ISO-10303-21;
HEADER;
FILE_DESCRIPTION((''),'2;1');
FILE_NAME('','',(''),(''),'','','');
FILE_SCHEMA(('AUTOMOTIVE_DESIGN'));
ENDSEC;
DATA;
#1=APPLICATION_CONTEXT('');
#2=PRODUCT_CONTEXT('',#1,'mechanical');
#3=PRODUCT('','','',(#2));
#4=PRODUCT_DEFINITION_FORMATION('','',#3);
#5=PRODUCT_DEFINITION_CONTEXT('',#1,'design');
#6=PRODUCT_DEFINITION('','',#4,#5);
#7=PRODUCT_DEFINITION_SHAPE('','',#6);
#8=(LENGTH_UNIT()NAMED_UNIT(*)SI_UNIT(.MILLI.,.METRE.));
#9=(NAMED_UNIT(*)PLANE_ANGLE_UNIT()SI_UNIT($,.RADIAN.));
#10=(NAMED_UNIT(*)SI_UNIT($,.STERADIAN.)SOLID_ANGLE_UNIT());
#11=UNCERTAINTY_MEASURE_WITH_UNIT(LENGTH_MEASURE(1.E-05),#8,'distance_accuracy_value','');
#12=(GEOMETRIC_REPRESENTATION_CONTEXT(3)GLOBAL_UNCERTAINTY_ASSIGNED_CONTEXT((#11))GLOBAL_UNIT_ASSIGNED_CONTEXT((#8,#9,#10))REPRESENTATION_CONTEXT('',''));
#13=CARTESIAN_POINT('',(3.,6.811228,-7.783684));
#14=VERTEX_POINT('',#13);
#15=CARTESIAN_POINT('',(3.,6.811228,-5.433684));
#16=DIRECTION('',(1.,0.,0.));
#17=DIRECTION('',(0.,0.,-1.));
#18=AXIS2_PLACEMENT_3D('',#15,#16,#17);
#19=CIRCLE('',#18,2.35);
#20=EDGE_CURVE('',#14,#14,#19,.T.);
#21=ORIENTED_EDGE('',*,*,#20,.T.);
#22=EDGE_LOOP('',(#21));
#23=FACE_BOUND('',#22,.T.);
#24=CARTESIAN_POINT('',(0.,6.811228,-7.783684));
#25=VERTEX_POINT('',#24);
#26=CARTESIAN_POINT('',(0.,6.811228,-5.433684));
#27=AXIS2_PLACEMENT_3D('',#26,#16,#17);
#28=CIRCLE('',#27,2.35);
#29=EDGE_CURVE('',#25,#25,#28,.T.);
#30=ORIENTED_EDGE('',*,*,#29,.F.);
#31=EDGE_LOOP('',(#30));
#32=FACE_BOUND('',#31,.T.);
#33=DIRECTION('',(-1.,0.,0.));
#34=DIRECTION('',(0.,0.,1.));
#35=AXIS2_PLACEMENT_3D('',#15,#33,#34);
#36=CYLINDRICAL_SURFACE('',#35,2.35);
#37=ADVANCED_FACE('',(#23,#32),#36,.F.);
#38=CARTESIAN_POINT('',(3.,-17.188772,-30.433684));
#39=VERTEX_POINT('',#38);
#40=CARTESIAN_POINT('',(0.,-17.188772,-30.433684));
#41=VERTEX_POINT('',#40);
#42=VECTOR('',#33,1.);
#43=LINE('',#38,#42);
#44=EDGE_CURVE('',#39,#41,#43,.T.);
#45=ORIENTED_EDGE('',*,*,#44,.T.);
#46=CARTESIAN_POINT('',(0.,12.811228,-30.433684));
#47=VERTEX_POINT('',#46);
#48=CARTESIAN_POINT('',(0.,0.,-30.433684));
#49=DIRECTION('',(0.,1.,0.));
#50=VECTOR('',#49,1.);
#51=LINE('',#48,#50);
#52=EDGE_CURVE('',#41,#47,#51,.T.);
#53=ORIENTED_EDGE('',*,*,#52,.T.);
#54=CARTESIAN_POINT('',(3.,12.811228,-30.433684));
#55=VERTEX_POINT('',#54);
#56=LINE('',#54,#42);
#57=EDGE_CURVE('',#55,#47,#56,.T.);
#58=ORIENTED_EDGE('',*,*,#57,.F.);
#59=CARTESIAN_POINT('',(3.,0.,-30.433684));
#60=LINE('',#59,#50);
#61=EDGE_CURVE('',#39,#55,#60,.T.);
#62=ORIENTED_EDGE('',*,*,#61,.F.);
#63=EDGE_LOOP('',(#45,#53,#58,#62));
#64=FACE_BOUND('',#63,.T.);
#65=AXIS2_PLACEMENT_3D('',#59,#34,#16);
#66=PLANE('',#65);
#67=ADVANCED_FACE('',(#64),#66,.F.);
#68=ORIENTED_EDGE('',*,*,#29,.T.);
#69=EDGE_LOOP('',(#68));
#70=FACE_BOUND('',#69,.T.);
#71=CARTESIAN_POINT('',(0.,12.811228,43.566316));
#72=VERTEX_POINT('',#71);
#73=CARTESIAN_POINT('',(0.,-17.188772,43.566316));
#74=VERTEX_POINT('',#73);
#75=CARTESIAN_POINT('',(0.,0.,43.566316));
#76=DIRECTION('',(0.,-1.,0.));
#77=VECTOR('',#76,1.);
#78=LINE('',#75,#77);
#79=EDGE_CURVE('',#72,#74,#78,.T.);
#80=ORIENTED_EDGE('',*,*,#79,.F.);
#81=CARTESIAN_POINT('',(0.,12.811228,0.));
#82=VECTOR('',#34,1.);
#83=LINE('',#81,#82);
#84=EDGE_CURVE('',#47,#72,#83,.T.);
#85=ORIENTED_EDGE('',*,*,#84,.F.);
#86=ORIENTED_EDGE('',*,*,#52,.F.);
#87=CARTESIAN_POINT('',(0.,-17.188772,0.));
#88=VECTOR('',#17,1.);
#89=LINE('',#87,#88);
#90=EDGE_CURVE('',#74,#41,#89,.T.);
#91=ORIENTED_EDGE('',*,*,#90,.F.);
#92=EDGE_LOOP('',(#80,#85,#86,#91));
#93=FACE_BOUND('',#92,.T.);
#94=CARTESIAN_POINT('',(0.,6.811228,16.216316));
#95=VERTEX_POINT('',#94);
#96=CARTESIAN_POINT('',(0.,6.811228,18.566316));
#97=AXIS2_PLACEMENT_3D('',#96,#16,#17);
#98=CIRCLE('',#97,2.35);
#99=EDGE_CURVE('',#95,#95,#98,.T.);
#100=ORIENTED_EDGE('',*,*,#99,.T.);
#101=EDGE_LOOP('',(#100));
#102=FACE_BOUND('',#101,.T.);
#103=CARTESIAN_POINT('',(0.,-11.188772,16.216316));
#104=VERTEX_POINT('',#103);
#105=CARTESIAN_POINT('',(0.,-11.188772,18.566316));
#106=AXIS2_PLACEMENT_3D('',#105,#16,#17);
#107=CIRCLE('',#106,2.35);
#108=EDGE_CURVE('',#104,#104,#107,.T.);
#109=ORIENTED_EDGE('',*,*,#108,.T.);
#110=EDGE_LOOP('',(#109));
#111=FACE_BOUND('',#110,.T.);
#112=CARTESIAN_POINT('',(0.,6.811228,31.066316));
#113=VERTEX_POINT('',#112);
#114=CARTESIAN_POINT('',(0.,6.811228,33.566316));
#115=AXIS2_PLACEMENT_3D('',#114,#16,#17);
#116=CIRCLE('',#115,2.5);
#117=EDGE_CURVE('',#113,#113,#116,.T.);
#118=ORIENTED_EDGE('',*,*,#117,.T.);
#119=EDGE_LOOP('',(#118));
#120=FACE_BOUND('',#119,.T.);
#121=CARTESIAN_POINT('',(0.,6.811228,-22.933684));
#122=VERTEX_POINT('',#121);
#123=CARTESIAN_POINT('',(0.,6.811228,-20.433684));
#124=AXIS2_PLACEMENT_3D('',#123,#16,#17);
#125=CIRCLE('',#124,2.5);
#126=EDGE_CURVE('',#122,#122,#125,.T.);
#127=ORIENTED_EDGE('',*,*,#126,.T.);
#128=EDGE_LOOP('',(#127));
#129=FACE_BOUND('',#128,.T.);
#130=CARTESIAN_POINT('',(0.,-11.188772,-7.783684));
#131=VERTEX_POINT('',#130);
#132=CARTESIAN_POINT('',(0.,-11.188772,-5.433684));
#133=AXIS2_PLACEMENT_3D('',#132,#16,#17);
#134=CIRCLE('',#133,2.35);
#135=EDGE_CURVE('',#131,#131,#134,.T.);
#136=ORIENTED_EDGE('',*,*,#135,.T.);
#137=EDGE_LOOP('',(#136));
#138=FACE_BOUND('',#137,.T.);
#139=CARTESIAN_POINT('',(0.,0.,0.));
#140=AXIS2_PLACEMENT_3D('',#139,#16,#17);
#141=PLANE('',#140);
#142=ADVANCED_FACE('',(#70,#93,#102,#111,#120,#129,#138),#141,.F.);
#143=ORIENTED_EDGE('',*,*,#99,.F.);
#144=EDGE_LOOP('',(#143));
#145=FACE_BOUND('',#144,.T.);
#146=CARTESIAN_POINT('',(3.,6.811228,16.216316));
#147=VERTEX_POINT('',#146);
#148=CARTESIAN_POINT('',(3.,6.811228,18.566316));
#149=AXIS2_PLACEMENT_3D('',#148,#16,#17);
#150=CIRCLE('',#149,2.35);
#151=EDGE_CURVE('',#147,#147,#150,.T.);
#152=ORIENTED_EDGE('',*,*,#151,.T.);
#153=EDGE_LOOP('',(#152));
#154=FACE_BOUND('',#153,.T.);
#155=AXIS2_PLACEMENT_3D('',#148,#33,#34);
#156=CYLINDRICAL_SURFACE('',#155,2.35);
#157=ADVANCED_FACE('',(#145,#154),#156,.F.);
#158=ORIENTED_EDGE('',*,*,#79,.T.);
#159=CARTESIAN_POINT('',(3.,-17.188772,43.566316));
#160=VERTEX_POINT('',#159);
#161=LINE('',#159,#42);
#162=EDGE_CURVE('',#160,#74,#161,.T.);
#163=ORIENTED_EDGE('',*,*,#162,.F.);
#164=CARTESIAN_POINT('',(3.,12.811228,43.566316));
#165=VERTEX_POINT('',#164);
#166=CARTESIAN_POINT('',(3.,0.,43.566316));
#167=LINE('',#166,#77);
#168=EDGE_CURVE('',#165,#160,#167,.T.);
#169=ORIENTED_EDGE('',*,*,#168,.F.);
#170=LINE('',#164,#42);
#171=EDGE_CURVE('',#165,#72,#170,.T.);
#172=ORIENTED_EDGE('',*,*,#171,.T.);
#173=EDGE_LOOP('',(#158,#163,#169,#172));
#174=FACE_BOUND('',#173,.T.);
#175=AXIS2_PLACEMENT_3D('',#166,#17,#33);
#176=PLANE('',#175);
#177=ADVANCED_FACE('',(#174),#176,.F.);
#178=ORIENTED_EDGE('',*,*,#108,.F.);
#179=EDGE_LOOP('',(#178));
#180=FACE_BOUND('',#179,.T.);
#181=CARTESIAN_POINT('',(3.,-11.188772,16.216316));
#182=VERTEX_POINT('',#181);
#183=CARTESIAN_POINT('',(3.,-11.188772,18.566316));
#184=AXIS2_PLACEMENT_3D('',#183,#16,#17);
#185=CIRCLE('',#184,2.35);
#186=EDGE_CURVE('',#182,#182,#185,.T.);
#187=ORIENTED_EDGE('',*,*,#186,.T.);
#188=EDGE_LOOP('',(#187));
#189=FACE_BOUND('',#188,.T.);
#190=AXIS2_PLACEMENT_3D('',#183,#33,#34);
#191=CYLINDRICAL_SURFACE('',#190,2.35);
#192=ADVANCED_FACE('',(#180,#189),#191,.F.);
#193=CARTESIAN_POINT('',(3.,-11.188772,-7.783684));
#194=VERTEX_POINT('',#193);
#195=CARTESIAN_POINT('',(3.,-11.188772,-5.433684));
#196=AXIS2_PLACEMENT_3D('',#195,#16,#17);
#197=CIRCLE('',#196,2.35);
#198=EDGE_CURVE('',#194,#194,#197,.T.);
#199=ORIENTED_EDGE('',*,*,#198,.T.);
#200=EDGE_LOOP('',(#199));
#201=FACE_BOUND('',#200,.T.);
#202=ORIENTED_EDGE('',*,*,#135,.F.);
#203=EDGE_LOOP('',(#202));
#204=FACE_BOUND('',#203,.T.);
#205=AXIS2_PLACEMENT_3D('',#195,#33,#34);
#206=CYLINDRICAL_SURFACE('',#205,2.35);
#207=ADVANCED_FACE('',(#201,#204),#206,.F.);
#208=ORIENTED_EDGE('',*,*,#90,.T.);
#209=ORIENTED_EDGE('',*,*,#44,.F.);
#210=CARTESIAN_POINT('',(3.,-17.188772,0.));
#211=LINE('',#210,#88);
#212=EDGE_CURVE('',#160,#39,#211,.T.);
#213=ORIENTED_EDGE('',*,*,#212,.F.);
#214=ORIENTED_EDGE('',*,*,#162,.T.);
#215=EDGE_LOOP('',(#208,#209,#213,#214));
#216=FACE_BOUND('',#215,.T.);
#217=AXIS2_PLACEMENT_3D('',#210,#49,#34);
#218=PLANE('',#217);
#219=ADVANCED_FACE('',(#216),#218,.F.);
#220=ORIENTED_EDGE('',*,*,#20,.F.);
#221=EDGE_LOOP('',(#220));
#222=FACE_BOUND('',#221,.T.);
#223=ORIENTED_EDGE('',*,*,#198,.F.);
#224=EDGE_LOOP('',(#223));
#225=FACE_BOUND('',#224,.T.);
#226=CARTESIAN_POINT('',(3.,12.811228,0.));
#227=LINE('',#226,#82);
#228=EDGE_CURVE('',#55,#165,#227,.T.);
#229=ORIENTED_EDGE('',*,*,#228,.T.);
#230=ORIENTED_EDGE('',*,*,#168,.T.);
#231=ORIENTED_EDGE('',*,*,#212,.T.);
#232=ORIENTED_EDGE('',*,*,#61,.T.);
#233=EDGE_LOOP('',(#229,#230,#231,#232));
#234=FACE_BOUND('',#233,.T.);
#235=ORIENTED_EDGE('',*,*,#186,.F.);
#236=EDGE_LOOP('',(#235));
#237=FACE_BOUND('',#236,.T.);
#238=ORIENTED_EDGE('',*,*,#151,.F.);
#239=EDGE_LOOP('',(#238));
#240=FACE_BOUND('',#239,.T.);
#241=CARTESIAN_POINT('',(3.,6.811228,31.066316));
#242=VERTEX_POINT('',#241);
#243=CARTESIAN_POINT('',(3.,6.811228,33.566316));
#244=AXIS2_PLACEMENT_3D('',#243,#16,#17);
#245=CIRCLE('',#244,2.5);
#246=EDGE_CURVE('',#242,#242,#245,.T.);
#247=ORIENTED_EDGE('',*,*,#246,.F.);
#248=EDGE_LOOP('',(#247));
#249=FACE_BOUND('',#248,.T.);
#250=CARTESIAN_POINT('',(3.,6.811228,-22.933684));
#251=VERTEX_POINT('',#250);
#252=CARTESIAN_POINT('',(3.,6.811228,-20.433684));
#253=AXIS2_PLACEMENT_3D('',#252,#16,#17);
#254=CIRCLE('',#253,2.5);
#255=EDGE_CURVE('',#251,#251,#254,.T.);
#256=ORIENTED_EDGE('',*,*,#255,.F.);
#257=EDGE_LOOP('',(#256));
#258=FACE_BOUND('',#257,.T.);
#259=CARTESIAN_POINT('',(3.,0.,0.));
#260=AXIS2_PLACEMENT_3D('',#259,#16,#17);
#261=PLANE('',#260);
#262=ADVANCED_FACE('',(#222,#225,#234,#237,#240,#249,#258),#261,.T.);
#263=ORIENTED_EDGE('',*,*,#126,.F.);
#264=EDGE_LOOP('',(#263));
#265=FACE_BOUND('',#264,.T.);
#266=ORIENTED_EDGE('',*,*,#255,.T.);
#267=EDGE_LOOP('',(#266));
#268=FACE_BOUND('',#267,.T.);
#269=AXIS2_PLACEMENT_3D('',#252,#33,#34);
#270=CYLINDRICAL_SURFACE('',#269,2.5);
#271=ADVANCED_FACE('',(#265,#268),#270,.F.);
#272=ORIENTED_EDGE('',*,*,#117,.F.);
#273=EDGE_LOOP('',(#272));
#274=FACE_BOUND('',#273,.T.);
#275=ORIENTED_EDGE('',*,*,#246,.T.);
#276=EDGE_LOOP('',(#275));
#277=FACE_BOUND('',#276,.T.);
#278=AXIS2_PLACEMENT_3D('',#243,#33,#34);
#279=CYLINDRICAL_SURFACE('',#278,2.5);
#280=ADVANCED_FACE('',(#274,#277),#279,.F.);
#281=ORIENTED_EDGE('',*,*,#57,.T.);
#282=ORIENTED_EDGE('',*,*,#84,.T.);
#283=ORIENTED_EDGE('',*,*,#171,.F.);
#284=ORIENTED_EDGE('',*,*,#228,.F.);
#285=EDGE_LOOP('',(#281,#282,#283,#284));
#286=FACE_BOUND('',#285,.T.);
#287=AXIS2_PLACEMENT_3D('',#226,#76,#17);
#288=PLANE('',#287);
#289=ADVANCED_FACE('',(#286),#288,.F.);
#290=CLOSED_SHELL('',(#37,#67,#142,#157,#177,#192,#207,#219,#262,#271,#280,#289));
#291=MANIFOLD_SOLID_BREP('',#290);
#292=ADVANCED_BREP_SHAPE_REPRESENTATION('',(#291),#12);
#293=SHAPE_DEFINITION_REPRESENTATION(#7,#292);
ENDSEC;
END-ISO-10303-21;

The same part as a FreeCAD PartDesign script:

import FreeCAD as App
import Part
import Sketcher
from FreeCAD import Vector


def add_polygon(sketch, points):
    """Adds a closed chain of lines whose ends are joined by coincident constraints."""
    first, n = sketch.GeometryCount, len(points)
    for a, b in zip(points, points[1:] + points[:1]):
        sketch.addGeometry(Part.LineSegment(App.Vector(*a, 0), App.Vector(*b, 0)), False)
    for i in range(n):
        sketch.addConstraint(Sketcher.Constraint("Coincident", first + i, 2, first + (i + 1) % n, 1))

doc = App.newDocument("Part")
body = doc.addObject("PartDesign::Body", "Body")

# Sketch on YZ plane
sketch1 = body.newObject("Sketcher::SketchObject", "Sketch")
sketch1.AttachmentSupport = (doc.getObject("YZ_Plane"), [""])
sketch1.MapMode = "FlatFace"
add_polygon(sketch1, [(-17.2, -30.4), (12.8, -30.4), (12.8, 43.6), (-17.2, 43.6)])  # lines 0-3
sketch1.addGeometry(Part.Circle(Vector(6.8, -20.4, 0), Vector(0, 0, 1), 2.5), False)  # 4
sketch1.addGeometry(Part.Circle(Vector(6.8, -5.4, 0), Vector(0, 0, 1), 2.4), False)  # 5
sketch1.addGeometry(Part.Circle(Vector(-11.2, 18.6, 0), Vector(0, 0, 1), 2.4), False)  # 6
sketch1.addGeometry(Part.Circle(Vector(-11.2, -5.4, 0), Vector(0, 0, 1), 2.4), False)  # 7
sketch1.addGeometry(Part.Circle(Vector(6.8, 18.6, 0), Vector(0, 0, 1), 2.4), False)  # 8
sketch1.addGeometry(Part.Circle(Vector(6.8, 33.6, 0), Vector(0, 0, 1), 2.5), False)  # 9
sketch1.addConstraint(Sketcher.Constraint("Horizontal", 0))
sketch1.addConstraint(Sketcher.Constraint("Vertical", 1))
sketch1.addConstraint(Sketcher.Constraint("Horizontal", 2))
sketch1.addConstraint(Sketcher.Constraint("Vertical", 3))
sketch1.addConstraint(Sketcher.Constraint("Equal", 5, 6))
sketch1.addConstraint(Sketcher.Constraint("Equal", 6, 7))
sketch1.addConstraint(Sketcher.Constraint("Equal", 7, 8))
sketch1.addConstraint(Sketcher.Constraint("Equal", 4, 9))
sketch1.addConstraint(Sketcher.Constraint("Horizontal", 5, 3, 7, 3))
sketch1.addConstraint(Sketcher.Constraint("Horizontal", 6, 3, 8, 3))
sketch1.addConstraint(Sketcher.Constraint("Vertical", 4, 3, 5, 3))
sketch1.addConstraint(Sketcher.Constraint("Vertical", 6, 3, 7, 3))
sketch1.addConstraint(Sketcher.Constraint("Vertical", 5, 3, 8, 3))
sketch1.addConstraint(Sketcher.Constraint("Vertical", 8, 3, 9, 3))
sketch1.addConstraint(Sketcher.Constraint("Diameter", 4, 5.0))
sketch1.addConstraint(Sketcher.Constraint("Diameter", 5, 4.7))
sketch1.addConstraint(Sketcher.Constraint("DistanceX", 0, 1, 0, 2, 30.0))
sketch1.addConstraint(Sketcher.Constraint("DistanceY", 1, 1, 1, 2, 74.0))
sketch1.addConstraint(Sketcher.Constraint("DistanceY", 4, 3, 5, 3, 15.0))
sketch1.addConstraint(Sketcher.Constraint("DistanceX", 6, 3, 5, 3, 18.0))
sketch1.addConstraint(Sketcher.Constraint("DistanceY", 5, 3, 6, 3, 24.0))
sketch1.addConstraint(Sketcher.Constraint("DistanceY", 8, 3, 9, 3, 15.0))
sketch1.addConstraint(Sketcher.Constraint("DistanceX", 4, 3, 0, 2, 6.0))
sketch1.addConstraint(Sketcher.Constraint("DistanceY", 0, 2, 4, 3, 10.0))
sketch1.addConstraint(Sketcher.Constraint("DistanceX", -1, 1, 4, 3, 6.811228))
sketch1.addConstraint(Sketcher.Constraint("DistanceY", 4, 3, -1, 1, 20.433684))
pad1 = body.newObject("PartDesign::Pad", "Pad")
pad1.Profile = sketch1
pad1.Length = 3

doc.recompute()
